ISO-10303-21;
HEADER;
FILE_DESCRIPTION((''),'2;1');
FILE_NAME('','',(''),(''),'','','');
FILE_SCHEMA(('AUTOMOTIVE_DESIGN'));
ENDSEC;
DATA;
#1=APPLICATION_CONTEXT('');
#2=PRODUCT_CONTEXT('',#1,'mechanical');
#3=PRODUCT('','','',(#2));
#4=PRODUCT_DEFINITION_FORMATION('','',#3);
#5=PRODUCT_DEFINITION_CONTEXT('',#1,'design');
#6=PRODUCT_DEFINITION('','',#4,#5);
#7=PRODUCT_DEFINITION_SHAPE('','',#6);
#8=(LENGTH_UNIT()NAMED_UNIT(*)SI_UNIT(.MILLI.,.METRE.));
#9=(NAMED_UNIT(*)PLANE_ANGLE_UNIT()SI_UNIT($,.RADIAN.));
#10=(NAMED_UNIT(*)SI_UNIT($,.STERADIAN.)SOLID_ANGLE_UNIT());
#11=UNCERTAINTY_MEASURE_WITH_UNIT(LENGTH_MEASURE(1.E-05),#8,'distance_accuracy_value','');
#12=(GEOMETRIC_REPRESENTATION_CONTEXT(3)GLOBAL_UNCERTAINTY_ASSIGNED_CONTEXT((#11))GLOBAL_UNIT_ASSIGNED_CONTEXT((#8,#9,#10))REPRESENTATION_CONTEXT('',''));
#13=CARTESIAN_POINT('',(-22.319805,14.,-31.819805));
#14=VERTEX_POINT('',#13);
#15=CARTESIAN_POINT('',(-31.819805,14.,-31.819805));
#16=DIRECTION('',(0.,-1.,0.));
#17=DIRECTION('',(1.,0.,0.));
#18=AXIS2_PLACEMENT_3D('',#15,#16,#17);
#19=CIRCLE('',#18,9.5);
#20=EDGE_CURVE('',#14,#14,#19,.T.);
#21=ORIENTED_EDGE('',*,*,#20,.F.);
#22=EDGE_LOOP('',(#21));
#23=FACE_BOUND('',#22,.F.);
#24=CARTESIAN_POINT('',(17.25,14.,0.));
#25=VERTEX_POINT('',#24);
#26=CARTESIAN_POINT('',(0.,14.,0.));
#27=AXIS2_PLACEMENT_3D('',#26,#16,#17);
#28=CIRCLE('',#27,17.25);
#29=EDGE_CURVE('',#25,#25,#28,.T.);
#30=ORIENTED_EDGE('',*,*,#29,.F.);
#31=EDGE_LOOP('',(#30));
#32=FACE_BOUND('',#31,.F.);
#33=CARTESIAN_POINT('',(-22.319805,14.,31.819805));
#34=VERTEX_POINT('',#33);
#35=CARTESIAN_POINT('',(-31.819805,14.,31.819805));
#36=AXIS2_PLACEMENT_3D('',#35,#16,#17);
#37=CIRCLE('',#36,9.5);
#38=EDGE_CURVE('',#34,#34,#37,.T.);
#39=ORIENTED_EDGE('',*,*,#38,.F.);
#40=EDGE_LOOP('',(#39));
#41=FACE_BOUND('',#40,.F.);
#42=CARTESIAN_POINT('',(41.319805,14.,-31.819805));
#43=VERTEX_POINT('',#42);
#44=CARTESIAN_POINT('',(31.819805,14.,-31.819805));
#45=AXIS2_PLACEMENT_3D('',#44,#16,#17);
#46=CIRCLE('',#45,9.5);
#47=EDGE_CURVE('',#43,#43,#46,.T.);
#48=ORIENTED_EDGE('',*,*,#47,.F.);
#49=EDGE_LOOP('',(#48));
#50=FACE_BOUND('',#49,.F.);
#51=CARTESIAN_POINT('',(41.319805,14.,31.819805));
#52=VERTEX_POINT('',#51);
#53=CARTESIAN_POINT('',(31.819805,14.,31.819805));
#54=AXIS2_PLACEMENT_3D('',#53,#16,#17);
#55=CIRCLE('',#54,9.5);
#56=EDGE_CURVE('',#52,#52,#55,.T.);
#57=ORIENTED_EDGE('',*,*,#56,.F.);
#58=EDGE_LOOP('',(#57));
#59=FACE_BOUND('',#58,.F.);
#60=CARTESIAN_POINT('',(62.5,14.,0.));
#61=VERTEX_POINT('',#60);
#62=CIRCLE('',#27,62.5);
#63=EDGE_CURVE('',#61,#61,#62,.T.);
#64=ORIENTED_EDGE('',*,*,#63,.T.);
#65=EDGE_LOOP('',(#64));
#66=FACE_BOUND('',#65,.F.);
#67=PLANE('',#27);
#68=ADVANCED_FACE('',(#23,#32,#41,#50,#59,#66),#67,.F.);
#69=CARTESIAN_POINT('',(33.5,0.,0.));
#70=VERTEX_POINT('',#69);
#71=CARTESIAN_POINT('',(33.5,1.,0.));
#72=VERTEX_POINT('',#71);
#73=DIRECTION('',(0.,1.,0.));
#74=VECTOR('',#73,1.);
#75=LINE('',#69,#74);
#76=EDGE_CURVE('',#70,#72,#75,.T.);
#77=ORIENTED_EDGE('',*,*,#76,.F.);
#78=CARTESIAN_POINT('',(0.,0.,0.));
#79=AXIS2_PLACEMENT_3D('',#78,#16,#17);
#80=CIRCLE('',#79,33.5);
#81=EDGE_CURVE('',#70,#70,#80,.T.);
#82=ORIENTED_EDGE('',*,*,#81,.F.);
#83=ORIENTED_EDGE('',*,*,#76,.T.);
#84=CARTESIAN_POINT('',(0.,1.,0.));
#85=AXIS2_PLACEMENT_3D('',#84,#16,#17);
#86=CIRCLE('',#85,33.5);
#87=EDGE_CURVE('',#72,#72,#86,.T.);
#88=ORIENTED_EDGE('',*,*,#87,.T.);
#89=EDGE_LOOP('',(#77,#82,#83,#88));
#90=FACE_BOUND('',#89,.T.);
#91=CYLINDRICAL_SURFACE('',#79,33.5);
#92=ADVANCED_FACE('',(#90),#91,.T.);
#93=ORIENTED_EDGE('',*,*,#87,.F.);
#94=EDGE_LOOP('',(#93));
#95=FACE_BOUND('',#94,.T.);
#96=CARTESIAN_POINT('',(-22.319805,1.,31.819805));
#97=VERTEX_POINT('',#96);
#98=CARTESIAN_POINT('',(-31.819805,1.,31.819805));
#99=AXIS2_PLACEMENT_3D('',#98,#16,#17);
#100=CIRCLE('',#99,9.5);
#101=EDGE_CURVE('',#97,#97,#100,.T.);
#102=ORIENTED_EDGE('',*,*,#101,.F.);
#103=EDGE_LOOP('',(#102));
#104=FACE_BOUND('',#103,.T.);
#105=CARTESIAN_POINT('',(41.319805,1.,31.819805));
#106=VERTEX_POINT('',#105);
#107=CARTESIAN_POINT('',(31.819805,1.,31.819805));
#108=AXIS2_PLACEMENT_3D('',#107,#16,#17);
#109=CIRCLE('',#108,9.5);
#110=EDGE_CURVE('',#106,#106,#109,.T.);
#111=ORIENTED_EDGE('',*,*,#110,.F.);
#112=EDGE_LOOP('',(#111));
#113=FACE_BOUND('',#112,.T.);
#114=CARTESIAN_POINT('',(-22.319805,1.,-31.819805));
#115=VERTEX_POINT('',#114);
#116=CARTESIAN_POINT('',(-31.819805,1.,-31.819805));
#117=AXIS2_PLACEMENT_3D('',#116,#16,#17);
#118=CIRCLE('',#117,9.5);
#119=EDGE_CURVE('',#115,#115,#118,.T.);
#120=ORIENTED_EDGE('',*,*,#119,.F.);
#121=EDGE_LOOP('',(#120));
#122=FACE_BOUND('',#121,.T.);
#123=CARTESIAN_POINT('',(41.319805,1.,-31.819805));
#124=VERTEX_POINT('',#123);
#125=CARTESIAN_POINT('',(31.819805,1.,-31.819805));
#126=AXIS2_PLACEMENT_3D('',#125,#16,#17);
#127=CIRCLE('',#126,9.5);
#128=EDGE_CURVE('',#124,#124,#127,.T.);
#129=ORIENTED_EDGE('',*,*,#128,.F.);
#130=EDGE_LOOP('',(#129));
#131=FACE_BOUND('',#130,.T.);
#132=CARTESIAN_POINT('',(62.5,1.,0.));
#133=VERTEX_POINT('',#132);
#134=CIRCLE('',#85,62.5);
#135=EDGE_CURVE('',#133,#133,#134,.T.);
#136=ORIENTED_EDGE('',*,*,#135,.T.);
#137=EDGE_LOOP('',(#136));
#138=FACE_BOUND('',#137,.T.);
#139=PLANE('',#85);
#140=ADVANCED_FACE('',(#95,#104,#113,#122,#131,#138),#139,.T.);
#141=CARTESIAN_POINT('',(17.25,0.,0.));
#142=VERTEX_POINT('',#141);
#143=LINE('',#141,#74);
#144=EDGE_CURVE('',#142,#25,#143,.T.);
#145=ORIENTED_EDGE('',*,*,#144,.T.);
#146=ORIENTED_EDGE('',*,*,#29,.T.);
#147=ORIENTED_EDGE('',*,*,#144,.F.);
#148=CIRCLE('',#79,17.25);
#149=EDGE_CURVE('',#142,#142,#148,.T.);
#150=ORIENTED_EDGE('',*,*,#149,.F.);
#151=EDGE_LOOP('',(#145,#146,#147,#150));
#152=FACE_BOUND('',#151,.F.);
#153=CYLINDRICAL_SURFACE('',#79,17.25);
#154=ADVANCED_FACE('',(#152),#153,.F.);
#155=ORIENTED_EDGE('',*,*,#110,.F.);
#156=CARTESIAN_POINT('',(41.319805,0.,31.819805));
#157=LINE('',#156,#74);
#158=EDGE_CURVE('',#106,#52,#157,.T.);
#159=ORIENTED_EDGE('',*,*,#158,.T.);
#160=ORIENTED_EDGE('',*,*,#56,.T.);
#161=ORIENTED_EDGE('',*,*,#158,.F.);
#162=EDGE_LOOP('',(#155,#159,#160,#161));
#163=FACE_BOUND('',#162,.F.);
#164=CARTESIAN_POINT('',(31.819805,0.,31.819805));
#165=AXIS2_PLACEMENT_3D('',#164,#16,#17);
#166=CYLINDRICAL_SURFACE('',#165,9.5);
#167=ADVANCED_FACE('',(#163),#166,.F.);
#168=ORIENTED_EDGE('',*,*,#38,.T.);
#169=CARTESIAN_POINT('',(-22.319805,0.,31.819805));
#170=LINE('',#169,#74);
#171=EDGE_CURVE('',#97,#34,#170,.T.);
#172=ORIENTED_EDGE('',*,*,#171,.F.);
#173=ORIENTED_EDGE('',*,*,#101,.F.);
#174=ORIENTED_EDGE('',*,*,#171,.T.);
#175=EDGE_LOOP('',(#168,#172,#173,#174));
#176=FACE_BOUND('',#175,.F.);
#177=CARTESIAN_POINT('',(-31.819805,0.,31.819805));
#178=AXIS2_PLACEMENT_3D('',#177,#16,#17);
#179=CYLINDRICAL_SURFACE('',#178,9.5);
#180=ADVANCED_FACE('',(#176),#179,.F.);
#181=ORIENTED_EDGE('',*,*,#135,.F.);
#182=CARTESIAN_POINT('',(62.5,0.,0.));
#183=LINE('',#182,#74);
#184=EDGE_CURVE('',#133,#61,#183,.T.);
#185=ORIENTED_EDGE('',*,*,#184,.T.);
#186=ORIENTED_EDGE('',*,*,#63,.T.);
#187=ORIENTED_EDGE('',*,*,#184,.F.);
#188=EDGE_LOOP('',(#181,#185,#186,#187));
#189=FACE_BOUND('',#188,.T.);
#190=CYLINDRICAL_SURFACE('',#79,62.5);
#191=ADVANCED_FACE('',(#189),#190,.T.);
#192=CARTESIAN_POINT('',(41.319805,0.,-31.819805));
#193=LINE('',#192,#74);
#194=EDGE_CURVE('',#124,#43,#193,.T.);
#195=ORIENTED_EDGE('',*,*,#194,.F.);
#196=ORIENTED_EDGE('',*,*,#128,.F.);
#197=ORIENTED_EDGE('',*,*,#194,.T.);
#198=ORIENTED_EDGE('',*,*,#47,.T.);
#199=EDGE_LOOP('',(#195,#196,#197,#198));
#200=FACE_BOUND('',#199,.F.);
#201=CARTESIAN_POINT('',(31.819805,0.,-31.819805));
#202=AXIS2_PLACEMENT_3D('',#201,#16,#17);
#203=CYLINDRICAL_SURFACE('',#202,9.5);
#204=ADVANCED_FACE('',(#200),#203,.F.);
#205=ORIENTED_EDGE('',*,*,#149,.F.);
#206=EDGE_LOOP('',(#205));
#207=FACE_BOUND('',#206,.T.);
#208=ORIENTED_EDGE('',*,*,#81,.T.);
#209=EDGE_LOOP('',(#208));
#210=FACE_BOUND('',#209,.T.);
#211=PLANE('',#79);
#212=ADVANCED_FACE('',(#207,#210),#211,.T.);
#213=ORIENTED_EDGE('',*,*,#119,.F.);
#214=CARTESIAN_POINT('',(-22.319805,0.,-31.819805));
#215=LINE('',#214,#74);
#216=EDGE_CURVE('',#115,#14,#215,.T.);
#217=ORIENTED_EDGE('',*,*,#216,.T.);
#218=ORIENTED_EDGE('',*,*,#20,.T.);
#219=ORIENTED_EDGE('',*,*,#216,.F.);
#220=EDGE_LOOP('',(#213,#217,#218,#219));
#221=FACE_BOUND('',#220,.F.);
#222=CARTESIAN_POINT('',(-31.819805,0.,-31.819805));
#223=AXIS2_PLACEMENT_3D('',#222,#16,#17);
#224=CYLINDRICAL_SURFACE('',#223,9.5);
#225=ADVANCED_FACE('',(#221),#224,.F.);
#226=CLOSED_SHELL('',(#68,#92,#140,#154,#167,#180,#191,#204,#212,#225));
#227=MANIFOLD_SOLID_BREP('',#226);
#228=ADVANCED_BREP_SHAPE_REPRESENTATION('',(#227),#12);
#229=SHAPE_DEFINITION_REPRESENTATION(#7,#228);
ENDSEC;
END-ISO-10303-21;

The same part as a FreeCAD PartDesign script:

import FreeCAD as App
import Part
import Sketcher

V = App.Vector
Q = App.Units.Quantity

doc = App.newDocument("Part")
params = doc.addObject("Spreadsheet::Sheet", "Params")
for row, (alias, value) in enumerate([
    ("sketch1_diameter", "125 mm"),
    ("sketch1_diameter2", "34.5 mm"),
    ("pad1_length", "14 mm"),
    ("sketch2_diameter", "125 mm"),
    ("sketch2_diameter2", "67 mm"),
    ("pocket1_length", "1 mm"),
    ("sketch3_diameter", "19 mm"),
], start=1):
    params.set(f"A{row}", alias)
    params.set(f"B{row}", "=" + value)
    params.setAlias(f"B{row}", alias)

body = doc.addObject("PartDesign::Body", "Body")

# Sketch on XZ plane
sketch1 = body.newObject("Sketcher::SketchObject", "Sketch")
sketch1.AttachmentSupport = (doc.getObject("XZ_Plane"), [""])
sketch1.MapMode = "FlatFace"
sketch1.addGeometry(Part.Circle(V(0, 0, 0), V(0, 0, 1), 62.5), False)
sketch1.addGeometry(Part.Circle(V(0, 0, 0), V(0, 0, 1), 17.25), False)
sketch1.addConstraint(Sketcher.Constraint("Coincident", 0, 3, -1, 1))
sketch1.addConstraint(Sketcher.Constraint("Coincident", 1, 3, -1, 1))
sketch1.addConstraint(Sketcher.Constraint("Diameter", 0, Q("125 mm")))
sketch1.addConstraint(Sketcher.Constraint("Diameter", 1, Q("34.5 mm")))
sketch1.setExpression("Constraints[2]", "Params.sketch1_diameter")
sketch1.setExpression("Constraints[3]", "Params.sketch1_diameter2")
pad1 = body.newObject("PartDesign::Pad", "Pad")
pad1.Profile = sketch1
pad1.setExpression("Length", "Params.pad1_length")
pad1.Reversed = True

# Sketch on XZ plane
sketch2 = body.newObject("Sketcher::SketchObject", "Sketch001")
sketch2.AttachmentSupport = (doc.getObject("XZ_Plane"), [""])
sketch2.MapMode = "FlatFace"
sketch2.addGeometry(Part.Circle(V(0, 0, 0), V(0, 0, 1), 62.5), False)
sketch2.addGeometry(Part.Circle(V(0, 0, 0), V(0, 0, 1), 33.5), False)
sketch2.addConstraint(Sketcher.Constraint("Coincident", 0, 3, -1, 1))
sketch2.addConstraint(Sketcher.Constraint("Coincident", 1, 3, -1, 1))
sketch2.addConstraint(Sketcher.Constraint("Diameter", 0, Q("125 mm")))
sketch2.addConstraint(Sketcher.Constraint("Diameter", 1, Q("67 mm")))
sketch2.setExpression("Constraints[2]", "Params.sketch2_diameter")
sketch2.setExpression("Constraints[3]", "Params.sketch2_diameter2")
pocket1 = body.newObject("PartDesign::Pocket", "Pocket")
pocket1.Profile = sketch2
pocket1.setExpression("Length", "Params.pocket1_length")

# Sketch on XZ plane
sketch3 = body.newObject("Sketcher::SketchObject", "Sketch002")
sketch3.AttachmentSupport = (doc.getObject("XZ_Plane"), [""])
sketch3.MapMode = "FlatFace"
sketch3.addGeometry(Part.Circle(V(-31.819805, 31.819805, 0), V(0, 0, 1), 9.5), False)
sketch3.addGeometry(Part.Circle(V(-31.819805, -31.819805, 0), V(0, 0, 1), 9.5), False)
sketch3.addGeometry(Part.Circle(V(31.819805, -31.819805, 0), V(0, 0, 1), 9.5), False)
sketch3.addGeometry(Part.Circle(V(31.819805, 31.819805, 0), V(0, 0, 1), 9.5), False)
sketch3.addConstraint(Sketcher.Constraint("Equal", 0, 1))
sketch3.addConstraint(Sketcher.Constraint("Equal", 1, 2))
sketch3.addConstraint(Sketcher.Constraint("Equal", 2, 3))
sketch3.addConstraint(Sketcher.Constraint("Symmetric", 0, 3, 2, 3, -1, 1))
sketch3.addConstraint(Sketcher.Constraint("Symmetric", 1, 3, 3, 3, -1, 1))
sketch3.addConstraint(Sketcher.Constraint("Symmetric", 1, 3, 2, 3, -2))
sketch3.addConstraint(Sketcher.Constraint("Diameter", 0, Q("19 mm")))
sketch3.addConstraint(Sketcher.Constraint("DistanceY", 1, 3, 0, 3, Q("63.63961 mm")))
sketch3.addConstraint(Sketcher.Constraint("DistanceX", 1, 3, 2, 3, Q("63.63961 mm")))
sketch3.setExpression("Constraints[6]", "Params.sketch3_diameter")
pocket2 = body.newObject("PartDesign::Pocket", "Pocket001")
pocket2.Profile = sketch3
pocket2.Type = "ThroughAll"

doc.recompute()
